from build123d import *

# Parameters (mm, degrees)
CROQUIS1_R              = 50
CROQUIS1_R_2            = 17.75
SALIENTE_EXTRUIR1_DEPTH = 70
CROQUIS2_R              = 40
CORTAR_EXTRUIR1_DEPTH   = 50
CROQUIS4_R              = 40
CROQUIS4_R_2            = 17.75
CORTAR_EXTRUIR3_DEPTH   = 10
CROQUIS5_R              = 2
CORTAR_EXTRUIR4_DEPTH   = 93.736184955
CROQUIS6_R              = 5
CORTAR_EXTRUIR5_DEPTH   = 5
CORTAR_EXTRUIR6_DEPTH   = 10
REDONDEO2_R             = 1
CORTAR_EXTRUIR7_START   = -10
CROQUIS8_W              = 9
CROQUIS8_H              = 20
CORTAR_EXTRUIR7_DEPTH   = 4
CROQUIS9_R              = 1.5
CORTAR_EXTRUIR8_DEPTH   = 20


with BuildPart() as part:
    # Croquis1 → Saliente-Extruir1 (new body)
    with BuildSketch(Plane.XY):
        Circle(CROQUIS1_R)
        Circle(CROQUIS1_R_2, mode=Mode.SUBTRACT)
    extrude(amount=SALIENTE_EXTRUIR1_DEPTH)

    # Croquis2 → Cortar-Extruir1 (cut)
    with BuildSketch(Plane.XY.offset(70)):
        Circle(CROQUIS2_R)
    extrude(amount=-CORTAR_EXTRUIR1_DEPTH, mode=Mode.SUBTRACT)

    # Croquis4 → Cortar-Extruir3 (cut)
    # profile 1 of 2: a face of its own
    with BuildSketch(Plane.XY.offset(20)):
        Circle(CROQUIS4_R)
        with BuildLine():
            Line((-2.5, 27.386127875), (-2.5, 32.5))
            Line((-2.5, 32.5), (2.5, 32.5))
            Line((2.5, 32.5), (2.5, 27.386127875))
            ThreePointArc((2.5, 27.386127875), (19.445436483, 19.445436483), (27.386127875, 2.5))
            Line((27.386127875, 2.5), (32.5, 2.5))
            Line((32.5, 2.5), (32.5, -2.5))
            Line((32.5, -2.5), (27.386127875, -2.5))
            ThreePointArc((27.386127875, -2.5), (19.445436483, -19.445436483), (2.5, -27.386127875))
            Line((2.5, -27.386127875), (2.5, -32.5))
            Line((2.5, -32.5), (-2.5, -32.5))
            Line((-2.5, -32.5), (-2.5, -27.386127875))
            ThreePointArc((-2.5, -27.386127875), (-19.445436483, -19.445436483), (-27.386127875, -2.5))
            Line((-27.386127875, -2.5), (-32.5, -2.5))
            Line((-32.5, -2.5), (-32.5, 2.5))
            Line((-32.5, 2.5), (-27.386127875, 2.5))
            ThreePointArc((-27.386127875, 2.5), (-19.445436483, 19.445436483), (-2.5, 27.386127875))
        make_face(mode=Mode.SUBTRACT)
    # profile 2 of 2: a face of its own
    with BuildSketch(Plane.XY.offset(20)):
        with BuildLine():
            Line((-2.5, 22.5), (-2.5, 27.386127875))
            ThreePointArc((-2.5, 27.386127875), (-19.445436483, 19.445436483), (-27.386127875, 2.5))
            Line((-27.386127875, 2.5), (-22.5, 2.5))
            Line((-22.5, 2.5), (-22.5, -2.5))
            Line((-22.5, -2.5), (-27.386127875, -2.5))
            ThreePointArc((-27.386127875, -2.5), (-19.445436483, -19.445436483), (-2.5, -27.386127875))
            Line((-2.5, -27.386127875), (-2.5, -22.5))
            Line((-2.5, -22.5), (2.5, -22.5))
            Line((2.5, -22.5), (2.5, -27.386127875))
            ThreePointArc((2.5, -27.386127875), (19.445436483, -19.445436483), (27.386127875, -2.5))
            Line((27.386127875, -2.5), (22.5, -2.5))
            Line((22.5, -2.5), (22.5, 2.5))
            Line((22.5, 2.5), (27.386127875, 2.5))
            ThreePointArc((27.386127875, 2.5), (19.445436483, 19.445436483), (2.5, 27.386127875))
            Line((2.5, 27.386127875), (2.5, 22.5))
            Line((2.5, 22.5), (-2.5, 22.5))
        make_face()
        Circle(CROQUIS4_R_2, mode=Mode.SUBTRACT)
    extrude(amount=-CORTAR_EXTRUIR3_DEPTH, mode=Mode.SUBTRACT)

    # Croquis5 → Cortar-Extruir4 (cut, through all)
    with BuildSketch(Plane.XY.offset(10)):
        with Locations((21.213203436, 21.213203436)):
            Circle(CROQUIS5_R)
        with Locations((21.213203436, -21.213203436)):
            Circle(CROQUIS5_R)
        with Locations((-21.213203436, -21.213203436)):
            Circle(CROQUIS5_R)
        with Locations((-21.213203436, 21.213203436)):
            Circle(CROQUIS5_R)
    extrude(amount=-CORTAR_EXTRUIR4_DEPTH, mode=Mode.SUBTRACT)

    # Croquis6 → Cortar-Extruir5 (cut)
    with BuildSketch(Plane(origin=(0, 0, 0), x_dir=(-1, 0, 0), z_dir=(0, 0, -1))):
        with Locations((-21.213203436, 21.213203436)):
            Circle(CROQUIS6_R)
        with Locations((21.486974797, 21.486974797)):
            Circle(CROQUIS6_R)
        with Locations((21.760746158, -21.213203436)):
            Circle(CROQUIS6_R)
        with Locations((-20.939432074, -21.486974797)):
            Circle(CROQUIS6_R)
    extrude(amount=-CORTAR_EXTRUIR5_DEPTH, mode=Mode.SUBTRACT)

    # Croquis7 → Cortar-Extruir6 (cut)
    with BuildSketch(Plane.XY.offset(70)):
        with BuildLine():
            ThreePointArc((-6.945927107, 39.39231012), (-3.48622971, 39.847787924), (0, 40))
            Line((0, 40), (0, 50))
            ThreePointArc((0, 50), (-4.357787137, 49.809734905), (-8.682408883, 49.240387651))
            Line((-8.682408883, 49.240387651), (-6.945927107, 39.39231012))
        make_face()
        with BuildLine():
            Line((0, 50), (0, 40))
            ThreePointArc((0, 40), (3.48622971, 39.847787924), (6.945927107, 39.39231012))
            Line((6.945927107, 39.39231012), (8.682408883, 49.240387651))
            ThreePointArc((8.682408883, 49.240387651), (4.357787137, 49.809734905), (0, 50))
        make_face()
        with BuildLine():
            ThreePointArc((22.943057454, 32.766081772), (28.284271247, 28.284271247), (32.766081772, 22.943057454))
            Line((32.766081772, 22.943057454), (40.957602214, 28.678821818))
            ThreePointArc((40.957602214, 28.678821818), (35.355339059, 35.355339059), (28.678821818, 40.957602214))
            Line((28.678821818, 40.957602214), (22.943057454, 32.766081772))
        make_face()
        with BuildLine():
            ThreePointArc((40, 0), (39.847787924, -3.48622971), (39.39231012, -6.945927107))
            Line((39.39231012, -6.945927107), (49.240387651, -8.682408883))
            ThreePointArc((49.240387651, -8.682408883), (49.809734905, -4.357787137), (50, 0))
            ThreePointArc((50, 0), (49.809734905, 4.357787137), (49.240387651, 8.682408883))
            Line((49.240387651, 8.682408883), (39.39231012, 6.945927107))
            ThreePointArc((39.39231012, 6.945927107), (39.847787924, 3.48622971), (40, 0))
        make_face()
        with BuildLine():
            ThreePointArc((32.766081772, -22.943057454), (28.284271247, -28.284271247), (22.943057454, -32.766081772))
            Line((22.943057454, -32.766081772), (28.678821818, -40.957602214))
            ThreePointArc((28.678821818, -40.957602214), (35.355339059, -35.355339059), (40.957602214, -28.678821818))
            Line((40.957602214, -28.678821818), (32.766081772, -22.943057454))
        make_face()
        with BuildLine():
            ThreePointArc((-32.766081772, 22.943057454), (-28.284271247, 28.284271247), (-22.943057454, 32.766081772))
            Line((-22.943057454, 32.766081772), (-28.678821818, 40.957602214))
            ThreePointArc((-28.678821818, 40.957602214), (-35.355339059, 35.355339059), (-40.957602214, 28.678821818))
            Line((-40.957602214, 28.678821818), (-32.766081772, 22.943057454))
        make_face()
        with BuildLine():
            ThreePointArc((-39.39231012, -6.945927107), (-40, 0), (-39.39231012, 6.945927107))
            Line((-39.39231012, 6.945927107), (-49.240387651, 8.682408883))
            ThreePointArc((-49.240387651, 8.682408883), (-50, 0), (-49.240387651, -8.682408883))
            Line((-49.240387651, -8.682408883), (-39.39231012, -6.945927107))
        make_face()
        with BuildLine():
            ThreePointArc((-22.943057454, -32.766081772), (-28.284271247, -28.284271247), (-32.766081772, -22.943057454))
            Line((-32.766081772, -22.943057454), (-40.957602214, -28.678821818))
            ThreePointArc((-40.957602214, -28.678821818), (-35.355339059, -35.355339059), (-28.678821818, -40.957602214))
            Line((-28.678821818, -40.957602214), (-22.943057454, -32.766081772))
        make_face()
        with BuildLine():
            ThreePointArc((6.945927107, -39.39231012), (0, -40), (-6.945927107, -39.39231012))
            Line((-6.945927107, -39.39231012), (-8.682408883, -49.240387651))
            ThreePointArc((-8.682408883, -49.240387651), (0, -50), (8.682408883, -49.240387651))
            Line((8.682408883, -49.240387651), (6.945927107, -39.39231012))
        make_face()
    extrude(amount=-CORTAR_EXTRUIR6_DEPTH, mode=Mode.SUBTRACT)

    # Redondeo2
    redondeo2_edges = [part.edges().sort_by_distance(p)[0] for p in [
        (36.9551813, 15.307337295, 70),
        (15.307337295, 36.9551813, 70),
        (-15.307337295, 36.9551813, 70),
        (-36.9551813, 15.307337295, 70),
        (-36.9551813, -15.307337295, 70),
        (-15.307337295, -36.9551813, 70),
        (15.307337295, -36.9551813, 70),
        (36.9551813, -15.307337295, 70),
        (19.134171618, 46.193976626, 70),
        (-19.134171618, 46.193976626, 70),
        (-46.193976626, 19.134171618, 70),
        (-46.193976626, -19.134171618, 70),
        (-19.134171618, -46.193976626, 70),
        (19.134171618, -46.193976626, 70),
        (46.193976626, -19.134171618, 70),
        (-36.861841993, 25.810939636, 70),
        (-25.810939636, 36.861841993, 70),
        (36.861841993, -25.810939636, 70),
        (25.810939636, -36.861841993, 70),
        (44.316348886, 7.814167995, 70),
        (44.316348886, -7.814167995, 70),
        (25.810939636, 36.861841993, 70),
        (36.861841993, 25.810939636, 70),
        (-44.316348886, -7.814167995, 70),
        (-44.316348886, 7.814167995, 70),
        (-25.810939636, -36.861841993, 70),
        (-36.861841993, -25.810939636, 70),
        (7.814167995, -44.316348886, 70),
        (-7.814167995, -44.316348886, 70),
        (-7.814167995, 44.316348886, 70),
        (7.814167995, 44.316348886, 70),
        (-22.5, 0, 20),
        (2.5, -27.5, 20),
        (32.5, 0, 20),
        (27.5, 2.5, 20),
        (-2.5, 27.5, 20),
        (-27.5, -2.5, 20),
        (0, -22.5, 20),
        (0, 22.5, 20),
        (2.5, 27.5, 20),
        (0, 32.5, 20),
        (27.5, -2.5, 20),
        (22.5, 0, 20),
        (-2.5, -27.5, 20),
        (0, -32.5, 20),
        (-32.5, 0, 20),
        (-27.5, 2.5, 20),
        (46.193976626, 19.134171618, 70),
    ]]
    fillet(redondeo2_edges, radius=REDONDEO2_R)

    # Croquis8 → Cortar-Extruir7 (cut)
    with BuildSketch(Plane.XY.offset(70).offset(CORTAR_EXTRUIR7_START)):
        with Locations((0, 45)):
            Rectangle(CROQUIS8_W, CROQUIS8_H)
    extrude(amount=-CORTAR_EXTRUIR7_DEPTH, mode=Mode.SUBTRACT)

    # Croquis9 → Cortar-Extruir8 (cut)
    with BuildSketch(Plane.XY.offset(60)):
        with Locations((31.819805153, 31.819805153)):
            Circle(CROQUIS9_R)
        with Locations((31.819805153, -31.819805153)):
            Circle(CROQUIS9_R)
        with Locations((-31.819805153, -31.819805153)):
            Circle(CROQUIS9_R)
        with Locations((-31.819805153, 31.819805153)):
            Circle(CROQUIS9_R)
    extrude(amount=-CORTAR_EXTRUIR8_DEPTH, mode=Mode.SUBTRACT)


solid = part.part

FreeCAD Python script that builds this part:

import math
import FreeCAD as App
import Part
import Sketcher
from FreeCAD import Vector
Q = App.Units.Quantity


def edges_at(feature, points):
    """Names of the edges that pass closest to the given points."""
    edges = feature.Shape.Edges
    near = lambda p: min(range(len(edges)), key=lambda i: edges[i].distToShape(Part.Vertex(*p))[0])
    return sorted({f"Edge{near(p) + 1}" for p in points})


def add_polygon(sketch, points):
    """Adds a closed chain of lines whose ends are joined by coincident constraints."""
    first, n = sketch.GeometryCount, len(points)
    for a, b in zip(points, points[1:] + points[:1]):
        sketch.addGeometry(Part.LineSegment(App.Vector(*a, 0), App.Vector(*b, 0)), False)
    for i in range(n):
        sketch.addConstraint(Sketcher.Constraint("Coincident", first + i, 2, first + (i + 1) % n, 1))

doc = App.newDocument("Part")
params = doc.addObject("Spreadsheet::Sheet", "Params")
for row, (alias, value) in enumerate([
    ("sketch1_diameter", "100 mm"),
    ("sketch1_diameter2", "35.5 mm"),
    ("pad1_length", "70 mm"),
    ("sketch2_diameter", "80 mm"),
    ("pocket1_length", "50 mm"),
    ("sketch3_diameter", "80 mm"),
    ("sketch3_diameter2", "35.5 mm"),
    ("sketch3_width", "10 mm"),
    ("sketch3_width2", "5 mm"),
    ("pocket2_length", "10 mm"),
    ("sketch4_diameter", "4 mm"),
    ("sketch5_diameter", "10 mm"),
    ("pocket4_length", "5 mm"),
    ("sketch6_radius", "40 mm"),
    ("sketch6_radius2", "50 mm"),
    ("pocket5_length", "10 mm"),
    ("fillet_radius", "1 mm"),
    ("sketch7_width", "9 mm"),
    ("sketch7_height", "20 mm"),
    ("pocket6_length", "4 mm"),
    ("sketch8_diameter", "3 mm"),
    ("pocket7_length", "20 mm"),
], start=1):
    params.set(f"A{row}", alias)
    params.set(f"B{row}", "=" + value)
    params.setAlias(f"B{row}", alias)

body = doc.addObject("PartDesign::Body", "Body")

# Sketch on XY plane
sketch1 = body.newObject("Sketcher::SketchObject", "Sketch")
sketch1.AttachmentSupport = (doc.getObject("XY_Plane"), [""])
sketch1.MapMode = "FlatFace"
sketch1.addGeometry(Part.Circle(Vector(0, 0, 0), Vector(0, 0, 1), 50), False)
sketch1.addGeometry(Part.Circle(Vector(0, 0, 0), Vector(0, 0, 1), 18), False)
sketch1.addConstraint(Sketcher.Constraint("Coincident", 0, 3, -1, 1))
sketch1.addConstraint(Sketcher.Constraint("Coincident", 1, 3, -1, 1))
sketch1.addConstraint(Sketcher.Constraint("Diameter", 0, 100.0))
sketch1.addConstraint(Sketcher.Constraint("Diameter", 1, 35.5))
sketch1.setExpression("Constraints[2]", "Params.sketch1_diameter")
sketch1.setExpression("Constraints[3]", "Params.sketch1_diameter2")
pad1 = body.newObject("PartDesign::Pad", "Pad")
pad1.Profile = sketch1
pad1.setExpression("Length", "Params.pad1_length")

# Sketch on XY plane
sketch2 = body.newObject("Sketcher::SketchObject", "Sketch001")
sketch2.AttachmentSupport = (doc.getObject("XY_Plane"), [""])
sketch2.MapMode = "FlatFace"
sketch2.AttachmentOffset = App.Placement(Vector(0, 0, 70), App.Rotation())
sketch2.addGeometry(Part.Circle(Vector(0, 0, 0), Vector(0, 0, 1), 40), False)
sketch2.addConstraint(Sketcher.Constraint("Coincident", 0, 3, -1, 1))
sketch2.addConstraint(Sketcher.Constraint("Diameter", 0, 80.0))
sketch2.setExpression("Constraints[1]", "Params.sketch2_diameter")
pocket1 = body.newObject("PartDesign::Pocket", "Pocket")
pocket1.Profile = sketch2
pocket1.setExpression("Length", "Params.pocket1_length")

# Sketch on XY plane
sketch3 = body.newObject("Sketcher::SketchObject", "Sketch002")
sketch3.AttachmentSupport = (doc.getObject("XY_Plane"), [""])
sketch3.MapMode = "FlatFace"
sketch3.AttachmentOffset = App.Placement(Vector(0, 0, 20), App.Rotation())
sketch3.addGeometry(Part.Circle(Vector(0, 0, 0), Vector(0, 0, 1), 40), False)  # 0
add_polygon(sketch3, [(-32, 2), (-22, 2), (-22, -2), (-32, -2)])  # lines 1-4
add_polygon(sketch3, [(-2, -32), (-2, -22), (2, -22), (2, -32)])  # lines 5-8
add_polygon(sketch3, [(32, -2), (22, -2), (22, 2), (32, 2)])  # lines 9-12
add_polygon(sketch3, [(2, 32), (2, 22), (-2, 22), (-2, 32)])  # lines 13-16
sketch3.addGeometry(Part.Circle(Vector(0, 0, 0), Vector(0, 0, 1), 18), False)  # 17
sketch3.addConstraint(Sketcher.Constraint("Horizontal", 1))
sketch3.addConstraint(Sketcher.Constraint("Vertical", 2))
sketch3.addConstraint(Sketcher.Constraint("Horizontal", 3))
sketch3.addConstraint(Sketcher.Constraint("Vertical", 4))
sketch3.addConstraint(Sketcher.Constraint("Vertical", 5))
sketch3.addConstraint(Sketcher.Constraint("Horizontal", 6))
sketch3.addConstraint(Sketcher.Constraint("Vertical", 7))
sketch3.addConstraint(Sketcher.Constraint("Horizontal", 8))
sketch3.addConstraint(Sketcher.Constraint("Horizontal", 9))
sketch3.addConstraint(Sketcher.Constraint("Vertical", 10))
sketch3.addConstraint(Sketcher.Constraint("Horizontal", 11))
sketch3.addConstraint(Sketcher.Constraint("Vertical", 12))
sketch3.addConstraint(Sketcher.Constraint("Vertical", 13))
sketch3.addConstraint(Sketcher.Constraint("Horizontal", 14))
sketch3.addConstraint(Sketcher.Constraint("Vertical", 15))
sketch3.addConstraint(Sketcher.Constraint("Horizontal", 16))
sketch3.addConstraint(Sketcher.Constraint("Coincident", 0, 3, -1, 1))
sketch3.addConstraint(Sketcher.Constraint("Coincident", 17, 3, -1, 1))
sketch3.addConstraint(Sketcher.Constraint("Symmetric", 1, 2, 9, 2, -1, 1))
sketch3.addConstraint(Sketcher.Constraint("Symmetric", 3, 2, 11, 2, -1, 1))
sketch3.addConstraint(Sketcher.Constraint("Symmetric", 5, 2, 13, 2, -1, 1))
sketch3.addConstraint(Sketcher.Constraint("Symmetric", 7, 2, 15, 2, -1, 1))
sketch3.addConstraint(Sketcher.Constraint("Horizontal", 3, 2, 9, 2))
sketch3.addConstraint(Sketcher.Constraint("Vertical", 7, 2, 13, 2))
sketch3.addConstraint(Sketcher.Constraint("Equal", 16, 2))
sketch3.addConstraint(Sketcher.Constraint("Equal", 11, 5))
sketch3.addConstraint(Sketcher.Constraint("Diameter", 0, 80.0))
sketch3.addConstraint(Sketcher.Constraint("Diameter", 17, 35.5))
sketch3.addConstraint(Sketcher.Constraint("DistanceX", 1, 1, 1, 2, 10.0))
sketch3.addConstraint(Sketcher.Constraint("DistanceX", 6, 1, 6, 2, 5.0))
sketch3.addConstraint(Sketcher.Constraint("DistanceX", 2, 2, 5, 2, 20.0))
sketch3.addConstraint(Sketcher.Constraint("DistanceY", 5, 2, 2, 2, 20.0))
sketch3.setExpression("Constraints[42]", "Params.sketch3_diameter")
sketch3.setExpression("Constraints[43]", "Params.sketch3_diameter2")
sketch3.setExpression("Constraints[44]", "Params.sketch3_width")
sketch3.setExpression("Constraints[45]", "Params.sketch3_width2")
pocket2 = body.newObject("PartDesign::Pocket", "Pocket001")
pocket2.Profile = sketch3
pocket2.setExpression("Length", "Params.pocket2_length")

# Sketch on XY plane
sketch4 = body.newObject("Sketcher::SketchObject", "Sketch003")
sketch4.AttachmentSupport = (doc.getObject("XY_Plane"), [""])
sketch4.MapMode = "FlatFace"
sketch4.AttachmentOffset = App.Placement(Vector(0, 0, 10), App.Rotation())
sketch4.addGeometry(Part.Circle(Vector(21.2, 21.2, 0), Vector(0, 0, 1), 2), False)
sketch4.addGeometry(Part.Circle(Vector(21.2, -21.2, 0), Vector(0, 0, 1), 2), False)
sketch4.addGeometry(Part.Circle(Vector(-21.2, -21.2, 0), Vector(0, 0, 1), 2), False)
sketch4.addGeometry(Part.Circle(Vector(-21.2, 21.2, 0), Vector(0, 0, 1), 2), False)
sketch4.addConstraint(Sketcher.Constraint("Equal", 0, 1))
sketch4.addConstraint(Sketcher.Constraint("Equal", 1, 2))
sketch4.addConstraint(Sketcher.Constraint("Equal", 2, 3))
sketch4.addConstraint(Sketcher.Constraint("Symmetric", 0, 3, 2, 3, -1, 1))
sketch4.addConstraint(Sketcher.Constraint("Symmetric", 1, 3, 3, 3, -1, 1))
sketch4.addConstraint(Sketcher.Constraint("Symmetric", 1, 3, 2, 3, -2))
sketch4.addConstraint(Sketcher.Constraint("Diameter", 0, 4.0))
sketch4.addConstraint(Sketcher.Constraint("DistanceX", -1, 1, 0, 3, 21.213203))
sketch4.addConstraint(Sketcher.Constraint("DistanceY", -1, 1, 0, 3, 21.213203))
sketch4.setExpression("Constraints[6]", "Params.sketch4_diameter")
pocket3 = body.newObject("PartDesign::Pocket", "Pocket002")
pocket3.Profile = sketch4
pocket3.Type = "ThroughAll"

# Sketch on XY plane
sketch5 = body.newObject("Sketcher::SketchObject", "Sketch004")
sketch5.AttachmentSupport = (doc.getObject("XY_Plane"), [""])
sketch5.MapMode = "FlatFace"
sketch5.addGeometry(Part.Circle(Vector(21, 21, 0), Vector(0, 0, 1), 5), False)
sketch5.addGeometry(Part.Circle(Vector(-21, 21, 0), Vector(0, 0, 1), 5), False)
sketch5.addGeometry(Part.Circle(Vector(-22, -21, 0), Vector(0, 0, 1), 5), False)
sketch5.addGeometry(Part.Circle(Vector(21, -21, 0), Vector(0, 0, 1), 5), False)
sketch5.addConstraint(Sketcher.Constraint("Equal", 0, 1))
sketch5.addConstraint(Sketcher.Constraint("Equal", 1, 2))
sketch5.addConstraint(Sketcher.Constraint("Equal", 2, 3))
sketch5.addConstraint(Sketcher.Constraint("Diameter", 0, 10.0))
sketch5.addConstraint(Sketcher.Constraint("DistanceX", 1, 3, 0, 3, 42.700178))
sketch5.addConstraint(Sketcher.Constraint("DistanceY", 0, 3, 1, 3, 0.273771))
sketch5.addConstraint(Sketcher.Constraint("DistanceX", 2, 3, 1, 3, 0.273771))
sketch5.addConstraint(Sketcher.Constraint("DistanceY", 2, 3, 1, 3, 42.700178))
sketch5.addConstraint(Sketcher.Constraint("DistanceX", 2, 3, 3, 3, 42.700178))
sketch5.addConstraint(Sketcher.Constraint("DistanceY", 3, 3, 2, 3, 0.273771))
sketch5.addConstraint(Sketcher.Constraint("DistanceX", -1, 1, 0, 3, 21.213203))
sketch5.addConstraint(Sketcher.Constraint("DistanceY", -1, 1, 0, 3, 21.213203))
sketch5.setExpression("Constraints[3]", "Params.sketch5_diameter")
pocket4 = body.newObject("PartDesign::Pocket", "Pocket003")
pocket4.Profile = sketch5
pocket4.setExpression("Length", "Params.pocket4_length")
pocket4.Reversed = True

# Sketch on XY plane
sketch6 = body.newObject("Sketcher::SketchObject", "Sketch005")
sketch6.AttachmentSupport = (doc.getObject("XY_Plane"), [""])
sketch6.MapMode = "FlatFace"
sketch6.AttachmentOffset = App.Placement(Vector(0, 0, 70), App.Rotation())
sketch6.addGeometry(Part.ArcOfCircle(Part.Circle(Vector(0, 0, 0), Vector(0, 0, 1), 40), math.radians(90), math.radians(100)), False)
sketch6.addGeometry(Part.ArcOfCircle(Part.Circle(Vector(0, 0, 0), Vector(0, 0, 1), 40), math.radians(80), math.radians(90)), False)
sketch6.addGeometry(Part.LineSegment(Vector(7, 39, 0), Vector(9, 49, 0)), False)
sketch6.addGeometry(Part.ArcOfCircle(Part.Circle(Vector(0, 0, 0), Vector(0, 0, 1), 50), math.radians(80), math.radians(90)), False)
sketch6.addGeometry(Part.ArcOfCircle(Part.Circle(Vector(0, 0, 0), Vector(0, 0, 1), 50), math.radians(90), math.radians(100)), False)
sketch6.addGeometry(Part.LineSegment(Vector(-9, 49, 0), Vector(-7, 39, 0)), False)
sketch6.addGeometry(Part.ArcOfCircle(Part.Circle(Vector(0, 0, 0), Vector(0, 0, 1), 40), math.radians(35), math.radians(55)), False)
sketch6.addGeometry(Part.LineSegment(Vector(33, 23, 0), Vector(41, 29, 0)), False)
sketch6.addGeometry(Part.ArcOfCircle(Part.Circle(Vector(0, 0, 0), Vector(0, 0, 1), 50), math.radians(35), math.radians(55)), False)
sketch6.addGeometry(Part.LineSegment(Vector(29, 41, 0), Vector(23, 33, 0)), False)
sketch6.addGeometry(Part.ArcOfCircle(Part.Circle(Vector(0, 0, 0), Vector(0, 0, 1), 40), math.radians(-10), math.radians(0)), False)
sketch6.addGeometry(Part.LineSegment(Vector(39, -7, 0), Vector(49, -9, 0)), False)
sketch6.addGeometry(Part.ArcOfCircle(Part.Circle(Vector(0, 0, 0), Vector(0, 0, 1), 50), math.radians(-10), math.radians(0)), False)
sketch6.addGeometry(Part.ArcOfCircle(Part.Circle(Vector(0, 0, 0), Vector(0, 0, 1), 50), math.radians(0), math.radians(10)), False)
sketch6.addGeometry(Part.LineSegment(Vector(49, 9, 0), Vector(39, 7, 0)), False)
sketch6.addGeometry(Part.ArcOfCircle(Part.Circle(Vector(0, 0, 0), Vector(0, 0, 1), 40), math.radians(0), math.radians(10)), False)
sketch6.addGeometry(Part.ArcOfCircle(Part.Circle(Vector(0, 0, 0), Vector(0, 0, 1), 40), math.radians(-55), math.radians(-35)), False)
sketch6.addGeometry(Part.LineSegment(Vector(23, -33, 0), Vector(29, -41, 0)), False)
sketch6.addGeometry(Part.ArcOfCircle(Part.Circle(Vector(0, 0, 0), Vector(0, 0, 1), 50), math.radians(-55), math.radians(-35)), False)
sketch6.addGeometry(Part.LineSegment(Vector(41, -29, 0), Vector(33, -23, 0)), False)
sketch6.addGeometry(Part.ArcOfCircle(Part.Circle(Vector(0, 0, 0), Vector(0, 0, 1), 40), math.radians(125), math.radians(145)), False)
sketch6.addGeometry(Part.LineSegment(Vector(-23, 33, 0), Vector(-29, 41, 0)), False)
sketch6.addGeometry(Part.ArcOfCircle(Part.Circle(Vector(0, 0, 0), Vector(0, 0, 1), 50), math.radians(125), math.radians(145)), False)
sketch6.addGeometry(Part.LineSegment(Vector(-41, 29, 0), Vector(-33, 23, 0)), False)
sketch6.addGeometry(Part.ArcOfCircle(Part.Circle(Vector(0, 0, 0), Vector(0, 0, 1), 40), math.radians(170), math.radians(190)), False)
sketch6.addGeometry(Part.LineSegment(Vector(-39, 7, 0), Vector(-49, 9, 0)), False)
sketch6.addGeometry(Part.ArcOfCircle(Part.Circle(Vector(0, 0, 0), Vector(0, 0, 1), 50), math.radians(170), math.radians(190)), False)
sketch6.addGeometry(Part.LineSegment(Vector(-49, -9, 0), Vector(-39, -7, 0)), False)
sketch6.addGeometry(Part.ArcOfCircle(Part.Circle(Vector(0, 0, 0), Vector(0, 0, 1), 40), math.radians(-145), math.radians(-125)), False)
sketch6.addGeometry(Part.LineSegment(Vector(-33, -23, 0), Vector(-41, -29, 0)), False)
sketch6.addGeometry(Part.ArcOfCircle(Part.Circle(Vector(0, 0, 0), Vector(0, 0, 1), 50), math.radians(-145), math.radians(-125)), False)
sketch6.addGeometry(Part.LineSegment(Vector(-29, -41, 0), Vector(-23, -33, 0)), False)
sketch6.addGeometry(Part.ArcOfCircle(Part.Circle(Vector(0, 0, 0), Vector(0, 0, 1), 40), math.radians(-100), math.radians(-80)), False)
sketch6.addGeometry(Part.LineSegment(Vector(-7, -39, 0), Vector(-9, -49, 0)), False)
sketch6.addGeometry(Part.ArcOfCircle(Part.Circle(Vector(0, 0, 0), Vector(0, 0, 1), 50), math.radians(-100), math.radians(-80)), False)
sketch6.addGeometry(Part.LineSegment(Vector(9, -49, 0), Vector(7, -39, 0)), False)
sketch6.addConstraint(Sketcher.Constraint("Tangent", 0, 1, 1, 2))
sketch6.addConstraint(Sketcher.Constraint("Coincident", 1, 1, 2, 1))
sketch6.addConstraint(Sketcher.Constraint("Coincident", 2, 2, 3, 1))
sketch6.addConstraint(Sketcher.Constraint("Tangent", 3, 2, 4, 1))
sketch6.addConstraint(Sketcher.Constraint("Coincident", 4, 2, 5, 1))
sketch6.addConstraint(Sketcher.Constraint("Coincident", 5, 2, 0, 2))
sketch6.addConstraint(Sketcher.Constraint("Coincident", 6, 1, 7, 1))
sketch6.addConstraint(Sketcher.Constraint("Coincident", 7, 2, 8, 1))
sketch6.addConstraint(Sketcher.Constraint("Coincident", 8, 2, 9, 1))
sketch6.addConstraint(Sketcher.Constraint("Coincident", 9, 2, 6, 2))
sketch6.addConstraint(Sketcher.Constraint("Coincident", 10, 1, 11, 1))
sketch6.addConstraint(Sketcher.Constraint("Coincident", 11, 2, 12, 1))
sketch6.addConstraint(Sketcher.Constraint("Tangent", 12, 2, 13, 1))
sketch6.addConstraint(Sketcher.Constraint("Coincident", 13, 2, 14, 1))
sketch6.addConstraint(Sketcher.Constraint("Coincident", 14, 2, 15, 2))
sketch6.addConstraint(Sketcher.Constraint("Tangent", 15, 1, 10, 2))
sketch6.addConstraint(Sketcher.Constraint("Coincident", 16, 1, 17, 1))
sketch6.addConstraint(Sketcher.Constraint("Coincident", 17, 2, 18, 1))
sketch6.addConstraint(Sketcher.Constraint("Coincident", 18, 2, 19, 1))
sketch6.addConstraint(Sketcher.Constraint("Coincident", 19, 2, 16, 2))
sketch6.addConstraint(Sketcher.Constraint("Coincident", 20, 1, 21, 1))
sketch6.addConstraint(Sketcher.Constraint("Coincident", 21, 2, 22, 1))
sketch6.addConstraint(Sketcher.Constraint("Coincident", 22, 2, 23, 1))
sketch6.addConstraint(Sketcher.Constraint("Coincident", 23, 2, 20, 2))
sketch6.addConstraint(Sketcher.Constraint("Coincident", 24, 1, 25, 1))
sketch6.addConstraint(Sketcher.Constraint("Coincident", 25, 2, 26, 1))
sketch6.addConstraint(Sketcher.Constraint("Coincident", 26, 2, 27, 1))
sketch6.addConstraint(Sketcher.Constraint("Coincident", 27, 2, 24, 2))
sketch6.addConstraint(Sketcher.Constraint("Coincident", 28, 1, 29, 1))
sketch6.addConstraint(Sketcher.Constraint("Coincident", 29, 2, 30, 1))
sketch6.addConstraint(Sketcher.Constraint("Coincident", 30, 2, 31, 1))
sketch6.addConstraint(Sketcher.Constraint("Coincident", 31, 2, 28, 2))
sketch6.addConstraint(Sketcher.Constraint("Coincident", 32, 1, 33, 1))
sketch6.addConstraint(Sketcher.Constraint("Coincident", 33, 2, 34, 1))
sketch6.addConstraint(Sketcher.Constraint("Coincident", 34, 2, 35, 1))
sketch6.addConstraint(Sketcher.Constraint("Coincident", 35, 2, 32, 2))
sketch6.addConstraint(Sketcher.Constraint("Coincident", 0, 3, -1, 1))
sketch6.addConstraint(Sketcher.Constraint("Coincident", 3, 3, -1, 1))
sketch6.addConstraint(Sketcher.Constraint("Coincident", 6, 3, -1, 1))
sketch6.addConstraint(Sketcher.Constraint("Coincident", 8, 3, -1, 1))
sketch6.addConstraint(Sketcher.Constraint("Coincident", 10, 3, -1, 1))
sketch6.addConstraint(Sketcher.Constraint("Coincident", 12, 3, -1, 1))
sketch6.addConstraint(Sketcher.Constraint("Coincident", 16, 3, -1, 1))
sketch6.addConstraint(Sketcher.Constraint("Coincident", 18, 3, -1, 1))
sketch6.addConstraint(Sketcher.Constraint("Coincident", 20, 3, -1, 1))
sketch6.addConstraint(Sketcher.Constraint("Coincident", 22, 3, -1, 1))
sketch6.addConstraint(Sketcher.Constraint("Coincident", 24, 3, -1, 1))
sketch6.addConstraint(Sketcher.Constraint("Coincident", 26, 3, -1, 1))
sketch6.addConstraint(Sketcher.Constraint("Coincident", 28, 3, -1, 1))
sketch6.addConstraint(Sketcher.Constraint("Coincident", 30, 3, -1, 1))
sketch6.addConstraint(Sketcher.Constraint("Coincident", 32, 3, -1, 1))
sketch6.addConstraint(Sketcher.Constraint("Coincident", 34, 3, -1, 1))
sketch6.addConstraint(Sketcher.Constraint("Equal", 0, 1))
sketch6.addConstraint(Sketcher.Constraint("Equal", 3, 4))
sketch6.addConstraint(Sketcher.Constraint("Equal", 1, 6))
sketch6.addConstraint(Sketcher.Constraint("Equal", 4, 8))
sketch6.addConstraint(Sketcher.Constraint("Equal", 6, 10))
sketch6.addConstraint(Sketcher.Constraint("Equal", 8, 12))
sketch6.addConstraint(Sketcher.Constraint("Equal", 12, 13))
sketch6.addConstraint(Sketcher.Constraint("Equal", 10, 15))
sketch6.addConstraint(Sketcher.Constraint("Equal", 15, 16))
sketch6.addConstraint(Sketcher.Constraint("Equal", 13, 18))
sketch6.addConstraint(Sketcher.Constraint("Equal", 16, 20))
sketch6.addConstraint(Sketcher.Constraint("Equal", 18, 22))
sketch6.addConstraint(Sketcher.Constraint("Equal", 20, 24))
sketch6.addConstraint(Sketcher.Constraint("Equal", 22, 26))
sketch6.addConstraint(Sketcher.Constraint("Equal", 24, 28))
sketch6.addConstraint(Sketcher.Constraint("Equal", 26, 30))
sketch6.addConstraint(Sketcher.Constraint("Equal", 28, 32))
sketch6.addConstraint(Sketcher.Constraint("Equal", 30, 34))
sketch6.addConstraint(Sketcher.Constraint("PointOnObject", 0, 1, -2))
sketch6.addConstraint(Sketcher.Constraint("PointOnObject", 3, 2, -2))
sketch6.addConstraint(Sketcher.Constraint("PointOnObject", 12, 2, -1))
sketch6.addConstraint(Sketcher.Constraint("PointOnObject", 15, 1, -1))
sketch6.addConstraint(Sketcher.Constraint("Perpendicular", 2, 11))
sketch6.addConstraint(Sketcher.Constraint("Perpendicular", 5, 14))
sketch6.addConstraint(Sketcher.Constraint("Perpendicular", 7, 17))
sketch6.addConstraint(Sketcher.Constraint("Perpendicular", 9, 19))
sketch6.addConstraint(Sketcher.Constraint("Parallel", 17, 21))
sketch6.addConstraint(Sketcher.Constraint("Parallel", 19, 23))
sketch6.addConstraint(Sketcher.Constraint("Parallel", 11, 25))
sketch6.addConstraint(Sketcher.Constraint("Parallel", 14, 27))
sketch6.addConstraint(Sketcher.Constraint("Perpendicular", 21, 29))
sketch6.addConstraint(Sketcher.Constraint("Perpendicular", 23, 31))
sketch6.addConstraint(Sketcher.Constraint("Perpendicular", 25, 33))
sketch6.addConstraint(Sketcher.Constraint("Perpendicular", 27, 35))
sketch6.addConstraint(Sketcher.Constraint("Horizontal", 2, 2, 4, 2))
sketch6.addConstraint(Sketcher.Constraint("Horizontal", 1, 1, 5, 2))
sketch6.addConstraint(Sketcher.Constraint("Horizontal", 9, 2, 20, 1))
sketch6.addConstraint(Sketcher.Constraint("Horizontal", 8, 2, 21, 2))
sketch6.addConstraint(Sketcher.Constraint("Horizontal", 7, 2, 22, 2))
sketch6.addConstraint(Sketcher.Constraint("Horizontal", 14, 2, 24, 1))
sketch6.addConstraint(Sketcher.Constraint("Horizontal", 11, 2, 26, 2))
sketch6.addConstraint(Sketcher.Constraint("Horizontal", 19, 2, 28, 1))
sketch6.addConstraint(Sketcher.Constraint("Horizontal", 17, 2, 30, 2))
sketch6.addConstraint(Sketcher.Constraint("Horizontal", 33, 2, 34, 2))
sketch6.addConstraint(Sketcher.Constraint("Vertical", 11, 2, 13, 2))
sketch6.addConstraint(Sketcher.Constraint("Vertical", 9, 2, 16, 1))
sketch6.addConstraint(Sketcher.Constraint("Vertical", 7, 2, 18, 2))
sketch6.addConstraint(Sketcher.Constraint("Vertical", 5, 2, 32, 1))
sketch6.addConstraint(Sketcher.Constraint("Radius", 0, 40.0))
sketch6.addConstraint(Sketcher.Constraint("Radius", 3, 50.0))
sketch6.addConstraint(Sketcher.Constraint("Angle", 2, Q("80 deg")))
sketch6.addConstraint(Sketcher.Constraint("Angle", 7, Q("35 deg")))
sketch6.addConstraint(Sketcher.Constraint("DistanceY", -1, 1, 1, 1, 39.39231))
sketch6.addConstraint(Sketcher.Constraint("DistanceX", -1, 1, 6, 1, 32.766082))
sketch6.addConstraint(Sketcher.Constraint("DistanceX", -1, 1, 8, 2, 28.678822))
sketch6.addConstraint(Sketcher.Constraint("DistanceX", -1, 1, 10, 1, 39.39231))
sketch6.setExpression("Constraints[100]", "Params.sketch6_radius")
sketch6.setExpression("Constraints[101]", "Params.sketch6_radius2")
pocket5 = body.newObject("PartDesign::Pocket", "Pocket004")
pocket5.Profile = sketch6
pocket5.setExpression("Length", "Params.pocket5_length")
doc.recompute()

fillet = body.newObject("PartDesign::Fillet", "Fillet")
fillet.Base = (pocket5, edges_at(pocket5, [
    (36.955, 15.307, 70),
    (15.307, 36.955, 70),
    (-15.307, 36.955, 70),
    (-36.955, 15.307, 70),
    (-36.955, -15.307, 70),
    (-15.307, -36.955, 70),
    (15.307, -36.955, 70),
    (36.955, -15.307, 70),
    (19.134, 46.194, 70),
    (-19.134, 46.194, 70),
    (-46.194, 19.134, 70),
    (-46.194, -19.134, 70),
    (-19.134, -46.194, 70),
    (19.134, -46.194, 70),
    (46.194, -19.134, 70),
    (-36.862, 25.811, 70),
    (-25.811, 36.862, 70),
    (36.862, -25.811, 70),
    (25.811, -36.862, 70),
    (44.316, 7.814, 70),
    (44.316, -7.814, 70),
    (25.811, 36.862, 70),
    (36.862, 25.811, 70),
    (-44.316, -7.814, 70),
    (-44.316, 7.814, 70),
    (-25.811, -36.862, 70),
    (-36.862, -25.811, 70),
    (7.814, -44.316, 70),
    (-7.814, -44.316, 70),
    (-7.814, 44.316, 70),
    (7.814, 44.316, 70),
    (-22.5, 0, 20),
    (2.5, -27.5, 20),
    (32.5, 0, 20),
    (27.5, 2.5, 20),
    (-2.5, 27.5, 20),
    (-27.5, -2.5, 20),
    (0, -22.5, 20),
    (0, 22.5, 20),
    (2.5, 27.5, 20),
    (0, 32.5, 20),
    (27.5, -2.5, 20),
    (22.5, 0, 20),
    (-2.5, -27.5, 20),
    (0, -32.5, 20),
    (-32.5, 0, 20),
    (-27.5, 2.5, 20),
    (46.194, 19.134, 70),
]))
fillet.setExpression("Radius", "Params.fillet_radius")

# Sketch on XY plane
sketch7 = body.newObject("Sketcher::SketchObject", "Sketch006")
sketch7.AttachmentSupport = (doc.getObject("XY_Plane"), [""])
sketch7.MapMode = "FlatFace"
sketch7.AttachmentOffset = App.Placement(Vector(0, 0, 60), App.Rotation())
add_polygon(sketch7, [(-4, 55), (-4, 35), (4, 35), (4, 55)])  # lines 0-3
sketch7.addConstraint(Sketcher.Constraint("Vertical", 0))
sketch7.addConstraint(Sketcher.Constraint("Horizontal", 1))
sketch7.addConstraint(Sketcher.Constraint("Vertical", 2))
sketch7.addConstraint(Sketcher.Constraint("Horizontal", 3))
sketch7.addConstraint(Sketcher.Constraint("DistanceX", 1, 1, 1, 2, 9.0))
sketch7.addConstraint(Sketcher.Constraint("DistanceY", 0, 2, 0, 1, 20.0))
sketch7.addConstraint(Sketcher.Constraint("DistanceY", -1, 1, 0, 2, 35.0))
sketch7.addConstraint(Sketcher.Constraint("DistanceX", 0, 2, -1, 1, 4.5))
sketch7.setExpression("Constraints[8]", "Params.sketch7_width")
sketch7.setExpression("Constraints[9]", "Params.sketch7_height")
pocket6 = body.newObject("PartDesign::Pocket", "Pocket005")
pocket6.Profile = sketch7
pocket6.setExpression("Length", "Params.pocket6_length")

# Sketch on XY plane
sketch8 = body.newObject("Sketcher::SketchObject", "Sketch007")
sketch8.AttachmentSupport = (doc.getObject("XY_Plane"), [""])
sketch8.MapMode = "FlatFace"
sketch8.AttachmentOffset = App.Placement(Vector(0, 0, 60), App.Rotation())
sketch8.addGeometry(Part.Circle(Vector(31.8, 31.8, 0), Vector(0, 0, 1), 1.5), False)
sketch8.addGeometry(Part.Circle(Vector(31.8, -31.8, 0), Vector(0, 0, 1), 1.5), False)
sketch8.addGeometry(Part.Circle(Vector(-31.8, -31.8, 0), Vector(0, 0, 1), 1.5), False)
sketch8.addGeometry(Part.Circle(Vector(-31.8, 31.8, 0), Vector(0, 0, 1), 1.5), False)
sketch8.addConstraint(Sketcher.Constraint("Equal", 0, 1))
sketch8.addConstraint(Sketcher.Constraint("Equal", 1, 2))
sketch8.addConstraint(Sketcher.Constraint("Equal", 2, 3))
sketch8.addConstraint(Sketcher.Constraint("Symmetric", 0, 3, 2, 3, -1, 1))
sketch8.addConstraint(Sketcher.Constraint("Symmetric", 1, 3, 3, 3, -1, 1))
sketch8.addConstraint(Sketcher.Constraint("Symmetric", 1, 3, 2, 3, -2))
sketch8.addConstraint(Sketcher.Constraint("Diameter", 0, 3.0))
sketch8.addConstraint(Sketcher.Constraint("DistanceY", 1, 3, 0, 3, 63.63961))
sketch8.addConstraint(Sketcher.Constraint("DistanceX", 2, 3, 1, 3, 63.63961))
sketch8.setExpression("Constraints[6]", "Params.sketch8_diameter")
pocket7 = body.newObject("PartDesign::Pocket", "Pocket006")
pocket7.Profile = sketch8
pocket7.setExpression("Length", "Params.pocket7_length")

doc.recompute()
